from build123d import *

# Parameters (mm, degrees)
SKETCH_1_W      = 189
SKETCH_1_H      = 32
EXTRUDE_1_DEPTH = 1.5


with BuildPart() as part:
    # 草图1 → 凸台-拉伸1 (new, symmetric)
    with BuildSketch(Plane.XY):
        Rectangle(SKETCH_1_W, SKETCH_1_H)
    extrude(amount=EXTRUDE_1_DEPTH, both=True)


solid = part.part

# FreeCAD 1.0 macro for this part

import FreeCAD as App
import Part
import Sketcher

V = App.Vector


def add_polygon(sketch, points):
    """Adds a closed chain of lines whose ends are joined by coincident constraints."""
    first, n = sketch.GeometryCount, len(points)
    for a, b in zip(points, points[1:] + points[:1]):
        sketch.addGeometry(Part.LineSegment(App.Vector(*a, 0), App.Vector(*b, 0)), False)
    for i in range(n):
        sketch.addConstraint(Sketcher.Constraint("Coincident", first + i, 2, first + (i + 1) % n, 1))

doc = App.newDocument("Part")
body = doc.addObject("PartDesign::Body", "Body")

sketch1 = doc.addObject("Sketcher::SketchObject", "Sketch")
body.addObject(sketch1)
sketch1.AttachmentSupport = (doc.XY_Plane, [""])
sketch1.MapMode = "FlatFace"
add_polygon(sketch1, [(-94, 16), (-94, -16), (94, -16), (94, 16)])
sketch1.addConstraint([
    Sketcher.Constraint("Vertical", 0),
    Sketcher.Constraint("Horizontal", 1),
    Sketcher.Constraint("Vertical", 2),
    Sketcher.Constraint("Horizontal", 3),
    Sketcher.Constraint("Symmetric", 0, 2, 2, 2, -1, 1),
    Sketcher.Constraint("DistanceX", 1, 1, 1, 2, 189.0),
    Sketcher.Constraint("DistanceY", 0, 2, 0, 1, 32.0),
])
pad1 = doc.addObject("PartDesign::Pad", "Pad")
body.addObject(pad1)
pad1.Profile = sketch1
pad1.Length = 3
pad1.Midplane = True

doc.recompute()
